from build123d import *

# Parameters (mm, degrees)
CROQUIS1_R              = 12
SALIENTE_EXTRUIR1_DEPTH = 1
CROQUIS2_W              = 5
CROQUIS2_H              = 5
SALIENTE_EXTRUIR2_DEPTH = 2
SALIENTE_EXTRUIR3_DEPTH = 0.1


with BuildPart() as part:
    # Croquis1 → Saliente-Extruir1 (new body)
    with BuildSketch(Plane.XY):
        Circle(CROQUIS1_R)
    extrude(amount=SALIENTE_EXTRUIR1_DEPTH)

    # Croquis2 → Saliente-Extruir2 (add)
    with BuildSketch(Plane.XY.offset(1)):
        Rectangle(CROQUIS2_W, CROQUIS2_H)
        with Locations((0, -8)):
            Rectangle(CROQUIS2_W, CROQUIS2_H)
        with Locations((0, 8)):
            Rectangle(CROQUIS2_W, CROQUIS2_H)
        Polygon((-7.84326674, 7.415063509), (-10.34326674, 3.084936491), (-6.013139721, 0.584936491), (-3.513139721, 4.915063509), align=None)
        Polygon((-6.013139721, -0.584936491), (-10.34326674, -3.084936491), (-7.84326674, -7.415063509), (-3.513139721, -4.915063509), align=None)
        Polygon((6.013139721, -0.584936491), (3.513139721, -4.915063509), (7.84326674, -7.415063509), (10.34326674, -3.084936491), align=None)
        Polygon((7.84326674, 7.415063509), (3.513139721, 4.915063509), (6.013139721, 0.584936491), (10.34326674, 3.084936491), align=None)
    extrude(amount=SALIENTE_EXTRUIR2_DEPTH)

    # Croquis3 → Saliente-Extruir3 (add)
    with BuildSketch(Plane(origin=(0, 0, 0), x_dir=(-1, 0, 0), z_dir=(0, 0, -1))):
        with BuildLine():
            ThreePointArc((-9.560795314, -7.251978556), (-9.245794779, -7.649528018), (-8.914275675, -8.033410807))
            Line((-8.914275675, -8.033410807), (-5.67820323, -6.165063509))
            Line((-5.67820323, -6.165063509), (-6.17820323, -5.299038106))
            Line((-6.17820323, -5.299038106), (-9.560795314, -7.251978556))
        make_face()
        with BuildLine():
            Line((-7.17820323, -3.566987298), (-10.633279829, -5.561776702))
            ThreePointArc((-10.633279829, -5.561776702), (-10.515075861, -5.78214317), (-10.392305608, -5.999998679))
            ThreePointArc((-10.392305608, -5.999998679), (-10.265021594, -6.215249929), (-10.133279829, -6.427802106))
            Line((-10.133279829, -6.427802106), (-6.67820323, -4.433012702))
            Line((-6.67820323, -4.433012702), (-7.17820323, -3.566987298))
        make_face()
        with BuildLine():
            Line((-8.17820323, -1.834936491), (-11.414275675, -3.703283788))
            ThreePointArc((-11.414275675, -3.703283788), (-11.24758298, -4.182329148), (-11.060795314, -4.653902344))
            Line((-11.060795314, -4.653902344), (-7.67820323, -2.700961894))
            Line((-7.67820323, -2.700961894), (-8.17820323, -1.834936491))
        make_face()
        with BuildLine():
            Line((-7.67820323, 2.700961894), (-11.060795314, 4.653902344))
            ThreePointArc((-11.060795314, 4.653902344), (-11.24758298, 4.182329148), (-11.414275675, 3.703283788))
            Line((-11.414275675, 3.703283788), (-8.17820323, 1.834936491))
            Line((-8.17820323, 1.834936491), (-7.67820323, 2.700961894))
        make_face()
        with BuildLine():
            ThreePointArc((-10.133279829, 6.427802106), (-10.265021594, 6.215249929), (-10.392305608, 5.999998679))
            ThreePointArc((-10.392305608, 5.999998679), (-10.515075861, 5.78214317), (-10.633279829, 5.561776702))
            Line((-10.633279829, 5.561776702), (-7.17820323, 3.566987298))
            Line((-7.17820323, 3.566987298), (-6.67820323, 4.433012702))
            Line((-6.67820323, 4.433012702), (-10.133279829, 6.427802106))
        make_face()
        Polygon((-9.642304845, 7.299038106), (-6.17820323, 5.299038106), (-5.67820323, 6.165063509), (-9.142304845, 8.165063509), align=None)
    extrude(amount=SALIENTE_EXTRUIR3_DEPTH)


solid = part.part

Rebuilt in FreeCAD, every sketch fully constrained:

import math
import FreeCAD as App
import Part
import Sketcher
Q = App.Units.Quantity


def add_polygon(sketch, points):
    """Adds a closed chain of lines whose ends are joined by coincident constraints."""
    first, n = sketch.GeometryCount, len(points)
    for a, b in zip(points, points[1:] + points[:1]):
        sketch.addGeometry(Part.LineSegment(App.Vector(*a, 0), App.Vector(*b, 0)), False)
    for i in range(n):
        sketch.addConstraint(Sketcher.Constraint("Coincident", first + i, 2, first + (i + 1) % n, 1))

doc = App.newDocument("Part")
body = doc.addObject("PartDesign::Body", "Body")

# Sketch on XY plane
sketch1 = doc.addObject("Sketcher::SketchObject", "Sketch")
body.addObject(sketch1)
sketch1.AttachmentSupport = (doc.XY_Plane, [""])
sketch1.MapMode = "FlatFace"
sketch1.addGeometry(Part.Circle(App.Vector(0, 0, 0), App.Vector(0, 0, 1), 12), False)
sketch1.addConstraint([
    Sketcher.Constraint("Coincident", 0, 3, -1, 1),
    Sketcher.Constraint("Diameter", 0, Q("24 mm")),
])
pad1 = doc.addObject("PartDesign::Pad", "Pad")
body.addObject(pad1)
pad1.Profile = sketch1
pad1.Length = 1

# Sketch on XY plane
sketch2 = doc.addObject("Sketcher::SketchObject", "Sketch001")
body.addObject(sketch2)
sketch2.AttachmentSupport = (doc.XY_Plane, [""])
sketch2.MapMode = "FlatFace"
sketch2.AttachmentOffset = App.Placement(App.Vector(0, 0, 1), App.Rotation())
add_polygon(sketch2, [(-2.5, 2.5), (-2.5, -2.5), (2.5, -2.5), (2.5, 2.5)])  # lines 0-3
add_polygon(sketch2, [(-2.5, -5.5), (-2.5, -10.5), (2.5, -10.5), (2.5, -5.5)])  # lines 4-7
add_polygon(sketch2, [(-2.5, 10.5), (-2.5, 5.5), (2.5, 5.5), (2.5, 10.5)])  # lines 8-11
add_polygon(sketch2, [(-7.8, 7.4), (-10.3, 3.1), (-6, 0.6), (-3.5, 4.9)])  # lines 12-15
add_polygon(sketch2, [(-6, -0.6), (-10.3, -3.1), (-7.8, -7.4), (-3.5, -4.9)])  # lines 16-19
add_polygon(sketch2, [(6, -0.6), (3.5, -4.9), (7.8, -7.4), (10.3, -3.1)])  # lines 20-23
add_polygon(sketch2, [(7.8, 7.4), (3.5, 4.9), (6, 0.6), (10.3, 3.1)])  # lines 24-27
sketch2.addConstraint([
    Sketcher.Constraint("Vertical", 0),
    Sketcher.Constraint("Horizontal", 1),
    Sketcher.Constraint("Vertical", 2),
    Sketcher.Constraint("Horizontal", 3),
    Sketcher.Constraint("Vertical", 4),
    Sketcher.Constraint("Horizontal", 5),
    Sketcher.Constraint("Vertical", 6),
    Sketcher.Constraint("Horizontal", 7),
    Sketcher.Constraint("Vertical", 8),
    Sketcher.Constraint("Horizontal", 9),
    Sketcher.Constraint("Vertical", 10),
    Sketcher.Constraint("Horizontal", 11),
    Sketcher.Constraint("Symmetric", 0, 2, 2, 2, -1, 1),
    Sketcher.Constraint("Symmetric", 6, 2, 8, 2, -1, 1),
    Sketcher.Constraint("Symmetric", 4, 2, 10, 2, -1, 1),
    Sketcher.Constraint("Symmetric", 14, 2, 20, 2, -1, 1),
    Sketcher.Constraint("Symmetric", 15, 2, 21, 2, -1, 1),
    Sketcher.Constraint("Symmetric", 12, 2, 22, 2, -1, 1),
    Sketcher.Constraint("Symmetric", 13, 2, 23, 2, -1, 1),
    Sketcher.Constraint("Symmetric", 18, 2, 24, 2, -1, 1),
    Sketcher.Constraint("Symmetric", 19, 2, 25, 2, -1, 1),
    Sketcher.Constraint("Symmetric", 16, 2, 26, 2, -1, 1),
    Sketcher.Constraint("Symmetric", 17, 2, 27, 2, -1, 1),
    Sketcher.Constraint("Symmetric", 18, 2, 20, 2, -2),
    Sketcher.Constraint("Symmetric", 17, 2, 21, 2, -2),
    Sketcher.Constraint("Symmetric", 16, 2, 22, 2, -2),
    Sketcher.Constraint("Symmetric", 19, 2, 23, 2, -2),
    Sketcher.Constraint("Perpendicular", 12, 13),
    Sketcher.Constraint("Perpendicular", 13, 14),
    Sketcher.Constraint("Perpendicular", 14, 15),
    Sketcher.Constraint("Vertical", 3, 2, 4, 2),
    Sketcher.Constraint("Vertical", 2, 2, 5, 2),
    Sketcher.Constraint("Equal", 11, 0),
    Sketcher.Constraint("Equal", 2, 4),
    Sketcher.Constraint("Equal", 12, 13),
    Sketcher.Constraint("DistanceX", 1, 1, 1, 2, Q("5 mm")),
    Sketcher.Constraint("Angle", 12, Q("-120 deg")),
    Sketcher.Constraint("Distance", 12, Q("5 mm")),
    Sketcher.Constraint("DistanceY", 4, 2, 0, 2, Q("8 mm")),
    Sketcher.Constraint("DistanceY", 17, 2, 13, 2, Q("8 mm")),
    Sketcher.Constraint("DistanceX", 13, 2, -1, 1, Q("6.01314 mm")),
])
pad2 = doc.addObject("PartDesign::Pad", "Pad001")
body.addObject(pad2)
pad2.Profile = sketch2
pad2.Length = 2

# Sketch on XY plane
sketch3 = doc.addObject("Sketcher::SketchObject", "Sketch002")
body.addObject(sketch3)
sketch3.AttachmentSupport = (doc.XY_Plane, [""])
sketch3.MapMode = "FlatFace"
sketch3.addGeometry(Part.ArcOfCircle(Part.Circle(App.Vector(0, 0, 0), App.Vector(0, 0, 1), 12), math.radians(-42.02), math.radians(-37.18)), False)  # 0
sketch3.addGeometry(Part.LineSegment(App.Vector(8.9, -8, 0), App.Vector(5.7, -6.2, 0)), False)  # 1
sketch3.addGeometry(Part.LineSegment(App.Vector(5.7, -6.2, 0), App.Vector(6.2, -5.3, 0)), False)  # 2
sketch3.addGeometry(Part.LineSegment(App.Vector(6.2, -5.3, 0), App.Vector(9.6, -7.3, 0)), False)  # 3
sketch3.addGeometry(Part.LineSegment(App.Vector(7.2, -3.6, 0), App.Vector(10.6, -5.6, 0)), False)  # 4
sketch3.addGeometry(Part.ArcOfCircle(Part.Circle(App.Vector(0, 0, 0), App.Vector(0, 0, 1), 12), math.radians(-30), math.radians(-27.61)), False)  # 5
sketch3.addGeometry(Part.ArcOfCircle(Part.Circle(App.Vector(0, 0, 0), App.Vector(0, 0, 1), 12), math.radians(-32.39), math.radians(-30)), False)  # 6
sketch3.addGeometry(Part.LineSegment(App.Vector(10.1, -6.4, 0), App.Vector(6.7, -4.4, 0)), False)  # 7
sketch3.addGeometry(Part.LineSegment(App.Vector(6.7, -4.4, 0), App.Vector(7.2, -3.6, 0)), False)  # 8
sketch3.addGeometry(Part.LineSegment(App.Vector(8.2, -1.8, 0), App.Vector(11.4, -3.7, 0)), False)  # 9
sketch3.addGeometry(Part.ArcOfCircle(Part.Circle(App.Vector(0, 0, 0), App.Vector(0, 0, 1), 12), math.radians(-22.82), math.radians(-17.98)), False)  # 10
sketch3.addGeometry(Part.LineSegment(App.Vector(11.1, -4.7, 0), App.Vector(7.7, -2.7, 0)), False)  # 11
sketch3.addGeometry(Part.LineSegment(App.Vector(7.7, -2.7, 0), App.Vector(8.2, -1.8, 0)), False)  # 12
sketch3.addGeometry(Part.LineSegment(App.Vector(7.7, 2.7, 0), App.Vector(11.1, 4.7, 0)), False)  # 13
sketch3.addGeometry(Part.ArcOfCircle(Part.Circle(App.Vector(0, 0, 0), App.Vector(0, 0, 1), 12), math.radians(17.98), math.radians(22.82)), False)  # 14
sketch3.addGeometry(Part.LineSegment(App.Vector(11.4, 3.7, 0), App.Vector(8.2, 1.8, 0)), False)  # 15
sketch3.addGeometry(Part.LineSegment(App.Vector(8.2, 1.8, 0), App.Vector(7.7, 2.7, 0)), False)  # 16
sketch3.addGeometry(Part.ArcOfCircle(Part.Circle(App.Vector(0, 0, 0), App.Vector(0, 0, 1), 12), math.radians(30), math.radians(32.39)), False)  # 17
sketch3.addGeometry(Part.ArcOfCircle(Part.Circle(App.Vector(0, 0, 0), App.Vector(0, 0, 1), 12), math.radians(27.61), math.radians(30)), False)  # 18
sketch3.addGeometry(Part.LineSegment(App.Vector(10.6, 5.6, 0), App.Vector(7.2, 3.6, 0)), False)  # 19
sketch3.addGeometry(Part.LineSegment(App.Vector(7.2, 3.6, 0), App.Vector(6.7, 4.4, 0)), False)  # 20
sketch3.addGeometry(Part.LineSegment(App.Vector(6.7, 4.4, 0), App.Vector(10.1, 6.4, 0)), False)  # 21
add_polygon(sketch3, [(9.6, 7.3), (6.2, 5.3), (5.7, 6.2), (9.1, 8.2)])  # lines 22-25
sketch3.addConstraint([
    Sketcher.Constraint("Coincident", 0, 1, 1, 1),
    Sketcher.Constraint("Coincident", 1, 2, 2, 1),
    Sketcher.Constraint("Coincident", 2, 2, 3, 1),
    Sketcher.Constraint("Coincident", 3, 2, 0, 2),
    Sketcher.Constraint("Coincident", 4, 2, 5, 2),
    Sketcher.Constraint("Tangent", 5, 1, 6, 2),
    Sketcher.Constraint("Coincident", 6, 1, 7, 1),
    Sketcher.Constraint("Coincident", 7, 2, 8, 1),
    Sketcher.Constraint("Coincident", 8, 2, 4, 1),
    Sketcher.Constraint("Coincident", 9, 2, 10, 2),
    Sketcher.Constraint("Coincident", 10, 1, 11, 1),
    Sketcher.Constraint("Coincident", 11, 2, 12, 1),
    Sketcher.Constraint("Coincident", 12, 2, 9, 1),
    Sketcher.Constraint("Coincident", 13, 2, 14, 2),
    Sketcher.Constraint("Coincident", 14, 1, 15, 1),
    Sketcher.Constraint("Coincident", 15, 2, 16, 1),
    Sketcher.Constraint("Coincident", 16, 2, 13, 1),
    Sketcher.Constraint("Tangent", 17, 1, 18, 2),
    Sketcher.Constraint("Coincident", 18, 1, 19, 1),
    Sketcher.Constraint("Coincident", 19, 2, 20, 1),
    Sketcher.Constraint("Coincident", 20, 2, 21, 1),
    Sketcher.Constraint("Coincident", 21, 2, 17, 2),
    Sketcher.Constraint("Coincident", 0, 3, -1, 1),
    Sketcher.Constraint("Coincident", 5, 3, -1, 1),
    Sketcher.Constraint("Coincident", 10, 3, -1, 1),
    Sketcher.Constraint("Coincident", 14, 3, -1, 1),
    Sketcher.Constraint("Coincident", 17, 3, -1, 1),
    Sketcher.Constraint("Equal", 0, 5),
    Sketcher.Constraint("Equal", 5, 6),
    Sketcher.Constraint("Equal", 6, 10),
    Sketcher.Constraint("Equal", 10, 14),
    Sketcher.Constraint("Equal", 14, 17),
    Sketcher.Constraint("Equal", 17, 18),
    Sketcher.Constraint("Symmetric", 12, 2, 15, 2, -1),
    Sketcher.Constraint("Symmetric", 11, 2, 16, 2, -1),
    Sketcher.Constraint("Symmetric", 8, 2, 19, 2, -1),
    Sketcher.Constraint("Symmetric", 7, 2, 20, 2, -1),
    Sketcher.Constraint("Symmetric", 2, 2, 22, 2, -1),
    Sketcher.Constraint("Symmetric", 1, 2, 23, 2, -1),
    Sketcher.Constraint("Perpendicular", 1, 2),
    Sketcher.Constraint("Perpendicular", 2, 3),
    Sketcher.Constraint("Parallel", 3, 4),
    Sketcher.Constraint("Parallel", 4, 7),
    Sketcher.Constraint("Perpendicular", 7, 8),
    Sketcher.Constraint("Perpendicular", 8, 9),
    Sketcher.Constraint("Parallel", 9, 11),
    Sketcher.Constraint("Perpendicular", 11, 12),
    Sketcher.Constraint("Parallel", 13, 15),
    Sketcher.Constraint("Perpendicular", 15, 16),
    Sketcher.Constraint("Perpendicular", 16, 19),
    Sketcher.Constraint("Perpendicular", 20, 21),
    Sketcher.Constraint("Parallel", 21, 22),
    Sketcher.Constraint("Perpendicular", 23, 24),
    Sketcher.Constraint("Perpendicular", 24, 25),
    Sketcher.Constraint("Vertical", 5, 1, 17, 1),
    Sketcher.Constraint("Equal", 4, 7),
    Sketcher.Constraint("Equal", 2, 8),
    Sketcher.Constraint("Equal", 1, 9),
    Sketcher.Constraint("Equal", 3, 11),
    Sketcher.Constraint("Equal", 8, 12),
    Sketcher.Constraint("Radius", 0, Q("12.000001 mm")),
    Sketcher.Constraint("Angle", 1, Q("150 deg")),
    Sketcher.Constraint("Distance", 2, Q("1 mm")),
    Sketcher.Constraint("Distance", 22, Q("4 mm")),
    Sketcher.Constraint("DistanceY", 5, 1, -1, 1, Q("5.999999 mm")),
    Sketcher.Constraint("DistanceX", 1, 2, 7, 2, Q("1 mm")),
    Sketcher.Constraint("DistanceX", 7, 2, 11, 2, Q("1 mm")),
    Sketcher.Constraint("DistanceX", 24, 2, 17, 1, Q("1.250001 mm")),
])
pad3 = doc.addObject("PartDesign::Pad", "Pad002")
body.addObject(pad3)
pad3.Profile = sketch3
pad3.Length = 0.1
pad3.Reversed = True

doc.recompute()
